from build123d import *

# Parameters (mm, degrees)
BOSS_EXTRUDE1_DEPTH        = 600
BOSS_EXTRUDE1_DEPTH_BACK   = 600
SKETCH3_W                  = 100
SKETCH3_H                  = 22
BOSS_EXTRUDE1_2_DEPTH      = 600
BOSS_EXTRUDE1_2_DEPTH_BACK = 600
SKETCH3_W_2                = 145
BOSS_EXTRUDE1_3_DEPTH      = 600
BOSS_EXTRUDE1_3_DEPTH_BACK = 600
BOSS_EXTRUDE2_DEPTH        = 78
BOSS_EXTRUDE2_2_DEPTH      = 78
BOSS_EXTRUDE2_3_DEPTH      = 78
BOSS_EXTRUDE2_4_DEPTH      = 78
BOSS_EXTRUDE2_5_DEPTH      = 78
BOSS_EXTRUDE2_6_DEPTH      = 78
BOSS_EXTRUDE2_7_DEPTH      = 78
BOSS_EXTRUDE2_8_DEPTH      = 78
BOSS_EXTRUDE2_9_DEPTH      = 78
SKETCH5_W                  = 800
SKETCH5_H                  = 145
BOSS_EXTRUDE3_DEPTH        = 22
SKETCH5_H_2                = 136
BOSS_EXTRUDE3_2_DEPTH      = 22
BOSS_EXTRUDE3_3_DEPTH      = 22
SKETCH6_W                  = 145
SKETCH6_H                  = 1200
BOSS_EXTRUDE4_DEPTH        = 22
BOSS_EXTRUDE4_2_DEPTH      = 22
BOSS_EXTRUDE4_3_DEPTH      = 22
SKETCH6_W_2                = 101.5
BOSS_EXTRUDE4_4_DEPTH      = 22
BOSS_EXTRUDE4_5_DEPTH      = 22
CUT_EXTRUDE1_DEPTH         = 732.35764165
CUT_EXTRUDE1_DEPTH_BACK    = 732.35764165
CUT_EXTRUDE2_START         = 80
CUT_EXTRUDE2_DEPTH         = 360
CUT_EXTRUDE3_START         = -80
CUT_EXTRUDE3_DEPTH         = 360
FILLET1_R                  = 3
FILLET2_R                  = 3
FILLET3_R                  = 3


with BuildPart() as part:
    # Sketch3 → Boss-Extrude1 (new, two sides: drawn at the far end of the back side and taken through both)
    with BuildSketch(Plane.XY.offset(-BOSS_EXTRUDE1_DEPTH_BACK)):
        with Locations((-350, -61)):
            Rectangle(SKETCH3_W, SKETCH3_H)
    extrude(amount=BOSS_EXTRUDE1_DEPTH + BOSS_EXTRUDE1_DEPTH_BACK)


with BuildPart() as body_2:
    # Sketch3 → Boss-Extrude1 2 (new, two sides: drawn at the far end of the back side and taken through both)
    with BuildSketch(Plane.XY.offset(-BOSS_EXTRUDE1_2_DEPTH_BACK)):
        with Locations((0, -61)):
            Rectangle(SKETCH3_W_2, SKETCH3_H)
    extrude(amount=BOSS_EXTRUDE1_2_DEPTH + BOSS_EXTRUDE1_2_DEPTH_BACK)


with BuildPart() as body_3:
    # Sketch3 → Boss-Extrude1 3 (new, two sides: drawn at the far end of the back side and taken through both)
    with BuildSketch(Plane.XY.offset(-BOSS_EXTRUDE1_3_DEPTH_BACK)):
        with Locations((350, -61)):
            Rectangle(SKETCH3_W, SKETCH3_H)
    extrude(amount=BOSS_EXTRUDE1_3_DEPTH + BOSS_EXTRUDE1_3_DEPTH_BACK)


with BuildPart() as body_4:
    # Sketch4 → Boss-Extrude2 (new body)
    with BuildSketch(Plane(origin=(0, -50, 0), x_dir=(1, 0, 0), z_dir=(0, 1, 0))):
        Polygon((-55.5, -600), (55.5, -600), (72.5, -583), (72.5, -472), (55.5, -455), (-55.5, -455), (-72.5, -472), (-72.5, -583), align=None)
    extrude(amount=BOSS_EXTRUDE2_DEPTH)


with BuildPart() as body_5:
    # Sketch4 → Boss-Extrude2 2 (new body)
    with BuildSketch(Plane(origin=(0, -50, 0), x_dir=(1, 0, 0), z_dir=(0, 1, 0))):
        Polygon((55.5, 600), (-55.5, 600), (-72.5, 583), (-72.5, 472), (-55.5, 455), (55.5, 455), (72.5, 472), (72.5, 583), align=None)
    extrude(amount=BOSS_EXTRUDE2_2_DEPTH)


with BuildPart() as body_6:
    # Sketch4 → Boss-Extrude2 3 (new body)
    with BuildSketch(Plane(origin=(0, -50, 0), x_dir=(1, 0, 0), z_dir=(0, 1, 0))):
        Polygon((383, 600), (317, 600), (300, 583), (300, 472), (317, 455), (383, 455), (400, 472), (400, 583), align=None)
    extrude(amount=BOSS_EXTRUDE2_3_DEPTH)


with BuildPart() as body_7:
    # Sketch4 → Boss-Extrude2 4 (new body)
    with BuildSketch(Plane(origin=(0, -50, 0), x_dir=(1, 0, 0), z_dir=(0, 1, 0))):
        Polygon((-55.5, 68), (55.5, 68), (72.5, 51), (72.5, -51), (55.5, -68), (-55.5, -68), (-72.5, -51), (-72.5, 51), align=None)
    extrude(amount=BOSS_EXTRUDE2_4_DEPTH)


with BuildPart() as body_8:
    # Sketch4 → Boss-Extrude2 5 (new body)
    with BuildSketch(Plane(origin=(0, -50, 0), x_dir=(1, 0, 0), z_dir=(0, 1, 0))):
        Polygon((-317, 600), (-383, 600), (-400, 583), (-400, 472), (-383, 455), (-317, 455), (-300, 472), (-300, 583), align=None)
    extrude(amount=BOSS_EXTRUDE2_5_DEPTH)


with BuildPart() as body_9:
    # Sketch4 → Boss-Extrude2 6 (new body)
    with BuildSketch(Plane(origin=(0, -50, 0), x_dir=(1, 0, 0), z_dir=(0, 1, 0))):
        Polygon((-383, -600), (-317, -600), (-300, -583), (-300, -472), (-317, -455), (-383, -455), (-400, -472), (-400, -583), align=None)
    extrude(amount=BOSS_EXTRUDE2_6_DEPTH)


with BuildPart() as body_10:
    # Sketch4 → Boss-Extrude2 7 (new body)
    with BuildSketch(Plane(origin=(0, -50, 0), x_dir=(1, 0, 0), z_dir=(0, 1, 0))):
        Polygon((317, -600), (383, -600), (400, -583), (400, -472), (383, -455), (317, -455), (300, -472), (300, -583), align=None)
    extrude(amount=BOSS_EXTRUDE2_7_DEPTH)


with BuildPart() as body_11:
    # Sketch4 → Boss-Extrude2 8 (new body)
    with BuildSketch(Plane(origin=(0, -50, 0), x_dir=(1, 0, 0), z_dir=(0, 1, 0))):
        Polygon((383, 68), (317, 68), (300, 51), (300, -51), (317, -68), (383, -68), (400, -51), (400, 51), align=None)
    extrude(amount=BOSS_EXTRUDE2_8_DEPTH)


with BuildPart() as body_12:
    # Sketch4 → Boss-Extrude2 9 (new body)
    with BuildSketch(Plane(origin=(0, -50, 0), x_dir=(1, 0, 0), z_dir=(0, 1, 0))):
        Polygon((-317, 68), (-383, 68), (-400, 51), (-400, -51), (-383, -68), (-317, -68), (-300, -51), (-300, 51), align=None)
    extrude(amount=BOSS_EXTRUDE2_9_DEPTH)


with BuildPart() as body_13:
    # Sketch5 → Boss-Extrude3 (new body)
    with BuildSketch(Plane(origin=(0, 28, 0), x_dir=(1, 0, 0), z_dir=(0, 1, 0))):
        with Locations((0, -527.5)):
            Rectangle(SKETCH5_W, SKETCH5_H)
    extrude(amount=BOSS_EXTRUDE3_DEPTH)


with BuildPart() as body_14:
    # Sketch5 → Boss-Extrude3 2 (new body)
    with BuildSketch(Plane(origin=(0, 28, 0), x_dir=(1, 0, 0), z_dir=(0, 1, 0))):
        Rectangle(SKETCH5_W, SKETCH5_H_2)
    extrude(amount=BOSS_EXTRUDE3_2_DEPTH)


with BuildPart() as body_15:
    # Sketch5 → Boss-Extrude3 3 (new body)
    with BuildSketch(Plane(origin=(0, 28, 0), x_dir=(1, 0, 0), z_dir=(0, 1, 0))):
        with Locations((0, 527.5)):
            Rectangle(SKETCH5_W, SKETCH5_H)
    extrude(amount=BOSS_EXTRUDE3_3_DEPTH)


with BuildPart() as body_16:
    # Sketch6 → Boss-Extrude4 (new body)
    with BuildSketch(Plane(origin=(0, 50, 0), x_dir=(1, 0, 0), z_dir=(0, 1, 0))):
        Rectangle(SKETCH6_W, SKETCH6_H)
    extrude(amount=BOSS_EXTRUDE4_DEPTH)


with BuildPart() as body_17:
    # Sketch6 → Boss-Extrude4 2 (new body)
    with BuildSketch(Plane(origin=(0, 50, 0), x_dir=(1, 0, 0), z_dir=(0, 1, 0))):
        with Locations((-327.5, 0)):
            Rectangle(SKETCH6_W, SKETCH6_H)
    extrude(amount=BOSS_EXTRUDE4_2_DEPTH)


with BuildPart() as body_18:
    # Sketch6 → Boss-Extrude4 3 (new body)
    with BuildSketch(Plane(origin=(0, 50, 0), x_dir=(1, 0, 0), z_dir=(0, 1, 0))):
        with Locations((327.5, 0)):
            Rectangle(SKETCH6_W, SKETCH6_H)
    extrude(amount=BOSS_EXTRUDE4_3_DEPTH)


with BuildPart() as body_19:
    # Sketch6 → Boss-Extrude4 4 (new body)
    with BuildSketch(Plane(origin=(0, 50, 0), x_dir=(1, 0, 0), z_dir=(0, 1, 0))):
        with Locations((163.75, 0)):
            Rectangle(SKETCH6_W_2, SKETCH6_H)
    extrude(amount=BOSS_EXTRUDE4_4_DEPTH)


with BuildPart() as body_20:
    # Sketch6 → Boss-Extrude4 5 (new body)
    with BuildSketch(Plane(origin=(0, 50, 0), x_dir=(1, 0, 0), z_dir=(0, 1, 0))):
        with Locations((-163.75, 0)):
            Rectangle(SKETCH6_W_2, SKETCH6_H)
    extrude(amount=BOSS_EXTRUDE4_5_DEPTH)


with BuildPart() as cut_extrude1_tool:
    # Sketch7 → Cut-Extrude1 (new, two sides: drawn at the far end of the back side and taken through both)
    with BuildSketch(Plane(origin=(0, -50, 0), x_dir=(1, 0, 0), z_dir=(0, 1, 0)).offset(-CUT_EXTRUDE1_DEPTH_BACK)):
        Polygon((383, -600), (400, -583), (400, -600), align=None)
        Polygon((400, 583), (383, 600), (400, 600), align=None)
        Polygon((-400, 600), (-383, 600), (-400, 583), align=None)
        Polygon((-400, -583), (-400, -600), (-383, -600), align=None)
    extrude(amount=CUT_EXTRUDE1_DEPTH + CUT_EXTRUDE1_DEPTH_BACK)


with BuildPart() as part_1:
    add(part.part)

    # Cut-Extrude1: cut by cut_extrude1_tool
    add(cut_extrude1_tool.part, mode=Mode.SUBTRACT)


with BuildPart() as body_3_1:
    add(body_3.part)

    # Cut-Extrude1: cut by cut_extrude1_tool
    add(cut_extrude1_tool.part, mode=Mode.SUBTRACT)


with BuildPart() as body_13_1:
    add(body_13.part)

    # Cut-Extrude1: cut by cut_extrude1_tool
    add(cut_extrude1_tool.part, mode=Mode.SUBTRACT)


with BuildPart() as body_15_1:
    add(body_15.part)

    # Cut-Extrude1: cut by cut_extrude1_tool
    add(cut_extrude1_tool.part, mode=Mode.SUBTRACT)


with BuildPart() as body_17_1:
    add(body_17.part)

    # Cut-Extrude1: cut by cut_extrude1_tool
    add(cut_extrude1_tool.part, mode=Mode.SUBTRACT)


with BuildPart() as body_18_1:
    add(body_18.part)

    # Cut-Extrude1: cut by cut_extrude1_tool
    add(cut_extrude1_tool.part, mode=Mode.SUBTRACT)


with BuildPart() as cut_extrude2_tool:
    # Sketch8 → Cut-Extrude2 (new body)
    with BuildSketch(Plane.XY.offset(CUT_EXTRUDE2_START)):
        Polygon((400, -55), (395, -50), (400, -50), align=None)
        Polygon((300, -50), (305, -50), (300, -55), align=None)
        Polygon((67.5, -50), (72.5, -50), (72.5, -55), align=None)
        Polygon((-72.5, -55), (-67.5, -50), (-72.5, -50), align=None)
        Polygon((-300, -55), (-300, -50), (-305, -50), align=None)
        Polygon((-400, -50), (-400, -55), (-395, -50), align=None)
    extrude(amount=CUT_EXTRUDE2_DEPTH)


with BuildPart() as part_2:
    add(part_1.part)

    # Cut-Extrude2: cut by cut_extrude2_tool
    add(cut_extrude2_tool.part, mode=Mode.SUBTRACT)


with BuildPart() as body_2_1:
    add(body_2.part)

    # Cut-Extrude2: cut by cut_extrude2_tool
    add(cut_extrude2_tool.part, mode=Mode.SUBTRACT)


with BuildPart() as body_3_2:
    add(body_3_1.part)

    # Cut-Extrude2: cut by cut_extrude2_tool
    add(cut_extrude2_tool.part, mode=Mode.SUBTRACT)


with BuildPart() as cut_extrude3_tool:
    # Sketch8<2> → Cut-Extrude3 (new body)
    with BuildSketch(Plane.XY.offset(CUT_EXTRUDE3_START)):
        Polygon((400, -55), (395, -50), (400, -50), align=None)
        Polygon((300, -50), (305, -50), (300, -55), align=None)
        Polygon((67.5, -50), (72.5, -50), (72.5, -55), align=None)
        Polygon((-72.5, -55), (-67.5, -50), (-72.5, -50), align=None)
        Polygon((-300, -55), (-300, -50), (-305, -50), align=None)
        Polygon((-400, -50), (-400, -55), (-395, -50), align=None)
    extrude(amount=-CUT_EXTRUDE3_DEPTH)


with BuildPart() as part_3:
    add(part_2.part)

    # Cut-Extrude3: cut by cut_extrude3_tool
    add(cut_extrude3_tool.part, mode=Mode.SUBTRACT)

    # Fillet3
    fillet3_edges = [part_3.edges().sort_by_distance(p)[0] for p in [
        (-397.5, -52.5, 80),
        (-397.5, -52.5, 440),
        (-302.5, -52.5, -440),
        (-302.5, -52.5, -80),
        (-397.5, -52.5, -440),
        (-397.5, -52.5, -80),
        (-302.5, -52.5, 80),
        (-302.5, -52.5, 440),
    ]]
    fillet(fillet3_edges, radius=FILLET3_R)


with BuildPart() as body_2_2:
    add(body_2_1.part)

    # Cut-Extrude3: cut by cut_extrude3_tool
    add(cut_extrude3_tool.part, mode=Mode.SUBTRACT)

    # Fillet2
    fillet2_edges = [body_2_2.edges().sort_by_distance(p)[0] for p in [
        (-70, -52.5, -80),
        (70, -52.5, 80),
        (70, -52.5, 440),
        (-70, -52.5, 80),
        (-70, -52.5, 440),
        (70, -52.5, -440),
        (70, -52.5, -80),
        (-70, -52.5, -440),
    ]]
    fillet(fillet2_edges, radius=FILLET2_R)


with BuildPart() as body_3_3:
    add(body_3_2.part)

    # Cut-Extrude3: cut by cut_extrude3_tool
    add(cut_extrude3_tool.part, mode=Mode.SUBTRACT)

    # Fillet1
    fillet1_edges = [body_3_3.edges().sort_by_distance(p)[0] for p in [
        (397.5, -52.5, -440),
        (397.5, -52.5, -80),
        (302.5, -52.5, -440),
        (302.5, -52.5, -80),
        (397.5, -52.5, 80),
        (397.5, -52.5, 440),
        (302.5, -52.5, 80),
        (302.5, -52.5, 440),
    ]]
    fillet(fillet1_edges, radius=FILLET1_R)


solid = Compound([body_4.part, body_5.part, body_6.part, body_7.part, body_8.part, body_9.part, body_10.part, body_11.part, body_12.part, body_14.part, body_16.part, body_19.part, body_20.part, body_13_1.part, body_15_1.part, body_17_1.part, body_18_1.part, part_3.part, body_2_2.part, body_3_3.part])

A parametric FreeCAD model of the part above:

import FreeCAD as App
import Part
import Sketcher
from FreeCAD import Vector
Q = App.Units.Quantity


def edges_at(feature, points):
    """Names of the edges that pass closest to the given points."""
    edges = feature.Shape.Edges
    near = lambda p: min(range(len(edges)), key=lambda i: edges[i].distToShape(Part.Vertex(*p))[0])
    return sorted({f"Edge{near(p) + 1}" for p in points})


def add_polygon(sketch, points):
    """Adds a closed chain of lines whose ends are joined by coincident constraints."""
    first, n = sketch.GeometryCount, len(points)
    for a, b in zip(points, points[1:] + points[:1]):
        sketch.addGeometry(Part.LineSegment(App.Vector(*a, 0), App.Vector(*b, 0)), False)
    for i in range(n):
        sketch.addConstraint(Sketcher.Constraint("Coincident", first + i, 2, first + (i + 1) % n, 1))

doc = App.newDocument("Part")
params = doc.addObject("Spreadsheet::Sheet", "Params")
for row, (alias, value) in enumerate([
    ("sketch1_width", "100 mm"),
    ("sketch1_height", "22 mm"),
    ("pad1_length", "600 mm"),
    ("pad1_length2", "600 mm"),
    ("sketch2_width", "145 mm"),
    ("sketch2_height", "22 mm"),
    ("pad2_length", "600 mm"),
    ("pad2_length2", "600 mm"),
    ("sketch3_width", "100 mm"),
    ("sketch3_height", "22 mm"),
    ("pad3_length", "600 mm"),
    ("pad3_length2", "600 mm"),
    ("sketch4_width", "111 mm"),
    ("pad4_length", "78 mm"),
    ("sketch5_width", "111 mm"),
    ("pad5_length", "78 mm"),
    ("sketch6_width", "66 mm"),
    ("sketch6_height", "111 mm"),
    ("pad6_length", "78 mm"),
    ("sketch7_width", "111 mm"),
    ("sketch7_height", "102 mm"),
    ("pad7_length", "78 mm"),
    ("sketch8_width", "66 mm"),
    ("sketch8_height", "111 mm"),
    ("pad8_length", "78 mm"),
    ("sketch9_width", "66 mm"),
    ("sketch9_height", "111 mm"),
    ("pad9_length", "78 mm"),
    ("sketch10_width", "66 mm"),
    ("sketch10_height", "111 mm"),
    ("pad10_length", "78 mm"),
    ("sketch11_width", "66 mm"),
    ("sketch11_height", "102 mm"),
    ("pad11_length", "78 mm"),
    ("sketch12_width", "66 mm"),
    ("sketch12_height", "102 mm"),
    ("pad12_length", "78 mm"),
    ("sketch13_width", "800 mm"),
    ("sketch13_height", "145 mm"),
    ("pad13_length", "22 mm"),
    ("sketch14_width", "800 mm"),
    ("sketch14_height", "136 mm"),
    ("pad14_length", "22 mm"),
    ("sketch15_width", "800 mm"),
    ("sketch15_height", "145 mm"),
    ("pad15_length", "22 mm"),
    ("sketch16_width", "145 mm"),
    ("sketch16_height", "1200 mm"),
    ("pad16_length", "22 mm"),
    ("sketch17_width", "145 mm"),
    ("sketch17_height", "1200 mm"),
    ("pad17_length", "22 mm"),
    ("sketch18_width", "145 mm"),
    ("sketch18_height", "1200 mm"),
    ("pad18_length", "22 mm"),
    ("sketch19_height", "1200 mm"),
    ("sketch19_width", "101.5 mm"),
    ("pad19_length", "22 mm"),
    ("sketch20_height", "1200 mm"),
    ("sketch20_width", "101.5 mm"),
    ("pad20_length", "22 mm"),
    ("sketch21_width", "17 mm"),
    ("pad21_length", "732.357642 mm"),
    ("pad21_length2", "732.357642 mm"),
    ("sketch22_width", "5 mm"),
    ("pad22_length", "360 mm"),
    ("sketch23_width", "5 mm"),
    ("pad23_length", "360 mm"),
    ("fillet_radius", "3 mm"),
    ("fillet2_radius", "3 mm"),
    ("fillet3_radius", "3 mm"),
], start=1):
    params.set(f"A{row}", alias)
    params.set(f"B{row}", "=" + value)
    params.setAlias(f"B{row}", alias)

body = doc.addObject("PartDesign::Body", "Body")

sketch1 = body.newObject("Sketcher::SketchObject", "Sketch")
sketch1.AttachmentSupport = (doc.getObject("XY_Plane"), [""])
sketch1.MapMode = "FlatFace"
add_polygon(sketch1, [(-400, -50), (-400, -72), (-300, -72), (-300, -50)])
sketch1.addConstraint(Sketcher.Constraint("Vertical", 0))
sketch1.addConstraint(Sketcher.Constraint("Horizontal", 1))
sketch1.addConstraint(Sketcher.Constraint("Vertical", 2))
sketch1.addConstraint(Sketcher.Constraint("Horizontal", 3))
sketch1.addConstraint(Sketcher.Constraint("DistanceX", 1, 1, 1, 2, Q("100 mm")))
sketch1.addConstraint(Sketcher.Constraint("DistanceY", 0, 2, 0, 1, Q("22 mm")))
sketch1.addConstraint(Sketcher.Constraint("DistanceX", 0, 2, -1, 1, Q("400 mm")))
sketch1.addConstraint(Sketcher.Constraint("DistanceY", 0, 2, -1, 1, Q("72 mm")))
sketch1.setExpression("Constraints[8]", "Params.sketch1_width")
sketch1.setExpression("Constraints[9]", "Params.sketch1_height")
pad1 = body.newObject("PartDesign::Pad", "Pad")
pad1.Profile = sketch1
pad1.Type = "TwoLengths"
pad1.setExpression("Length", "Params.pad1_length")
pad1.setExpression("Length2", "Params.pad1_length2")
body2 = doc.addObject("PartDesign::Body", "Body001")

sketch2 = body2.newObject("Sketcher::SketchObject", "Sketch001")
sketch2.AttachmentSupport = (doc.getObject("XY_Plane001"), [""])
sketch2.MapMode = "FlatFace"
add_polygon(sketch2, [(-72, -50), (-72, -72), (72, -72), (72, -50)])
sketch2.addConstraint(Sketcher.Constraint("Vertical", 0))
sketch2.addConstraint(Sketcher.Constraint("Horizontal", 1))
sketch2.addConstraint(Sketcher.Constraint("Vertical", 2))
sketch2.addConstraint(Sketcher.Constraint("Horizontal", 3))
sketch2.addConstraint(Sketcher.Constraint("DistanceX", 1, 1, 1, 2, Q("145 mm")))
sketch2.addConstraint(Sketcher.Constraint("DistanceY", 0, 2, 0, 1, Q("22 mm")))
sketch2.addConstraint(Sketcher.Constraint("DistanceY", 0, 2, -1, 1, Q("72 mm")))
sketch2.addConstraint(Sketcher.Constraint("DistanceX", 0, 2, -1, 1, Q("72.5 mm")))
sketch2.setExpression("Constraints[8]", "Params.sketch2_width")
sketch2.setExpression("Constraints[9]", "Params.sketch2_height")
pad2 = body2.newObject("PartDesign::Pad", "Pad001")
pad2.Profile = sketch2
pad2.Type = "TwoLengths"
pad2.setExpression("Length", "Params.pad2_length")
pad2.setExpression("Length2", "Params.pad2_length2")
body3 = doc.addObject("PartDesign::Body", "Body002")

sketch3 = body3.newObject("Sketcher::SketchObject", "Sketch002")
sketch3.AttachmentSupport = (doc.getObject("XY_Plane002"), [""])
sketch3.MapMode = "FlatFace"
add_polygon(sketch3, [(300, -50), (300, -72), (400, -72), (400, -50)])
sketch3.addConstraint(Sketcher.Constraint("Vertical", 0))
sketch3.addConstraint(Sketcher.Constraint("Horizontal", 1))
sketch3.addConstraint(Sketcher.Constraint("Vertical", 2))
sketch3.addConstraint(Sketcher.Constraint("Horizontal", 3))
sketch3.addConstraint(Sketcher.Constraint("DistanceX", 1, 1, 1, 2, Q("100 mm")))
sketch3.addConstraint(Sketcher.Constraint("DistanceY", 0, 2, 0, 1, Q("22 mm")))
sketch3.addConstraint(Sketcher.Constraint("DistanceX", -1, 1, 0, 2, Q("300 mm")))
sketch3.addConstraint(Sketcher.Constraint("DistanceY", 0, 2, -1, 1, Q("72 mm")))
sketch3.setExpression("Constraints[8]", "Params.sketch3_width")
sketch3.setExpression("Constraints[9]", "Params.sketch3_height")
pad3 = body3.newObject("PartDesign::Pad", "Pad002")
pad3.Profile = sketch3
pad3.Type = "TwoLengths"
pad3.setExpression("Length", "Params.pad3_length")
pad3.setExpression("Length2", "Params.pad3_length2")
body4 = doc.addObject("PartDesign::Body", "Body003")

sketch4 = body4.newObject("Sketcher::SketchObject", "Sketch003")
sketch4.AttachmentSupport = (doc.getObject("XZ_Plane003"), [""])
sketch4.MapMode = "FlatFace"
sketch4.AttachmentOffset = App.Placement(Vector(0, 0, 50), App.Rotation())
add_polygon(sketch4, [(-56, 600), (56, 600), (72, 583), (72, 472), (56, 455), (-56, 455), (-72, 472), (-72, 583)])
sketch4.addConstraint(Sketcher.Constraint("Horizontal", 0))
sketch4.addConstraint(Sketcher.Constraint("Vertical", 2))
sketch4.addConstraint(Sketcher.Constraint("Horizontal", 4))
sketch4.addConstraint(Sketcher.Constraint("Vertical", 6))
sketch4.addConstraint(Sketcher.Constraint("Symmetric", 2, 2, 5, 2, -2))
sketch4.addConstraint(Sketcher.Constraint("Perpendicular", 1, 3))
sketch4.addConstraint(Sketcher.Constraint("Perpendicular", 3, 5))
sketch4.addConstraint(Sketcher.Constraint("Perpendicular", 5, 7))
sketch4.addConstraint(Sketcher.Constraint("Horizontal", 1, 2, 6, 2))
sketch4.addConstraint(Sketcher.Constraint("Vertical", 0, 2, 3, 2))
sketch4.addConstraint(Sketcher.Constraint("Vertical", 4, 2, 7, 2))
sketch4.addConstraint(Sketcher.Constraint("Equal", 4, 2))
sketch4.addConstraint(Sketcher.Constraint("DistanceX", 0, 1, 0, 2, Q("111 mm")))
sketch4.addConstraint(Sketcher.Constraint("DistanceY", -1, 1, 0, 2, Q("600 mm")))
sketch4.addConstraint(Sketcher.Constraint("DistanceY", -1, 1, 1, 2, Q("583 mm")))
sketch4.setExpression("Constraints[20]", "Params.sketch4_width")
pad4 = body4.newObject("PartDesign::Pad", "Pad003")
pad4.Profile = sketch4
pad4.setExpression("Length", "Params.pad4_length")
pad4.Reversed = True
body5 = doc.addObject("PartDesign::Body", "Body004")

sketch5 = body5.newObject("Sketcher::SketchObject", "Sketch004")
sketch5.AttachmentSupport = (doc.getObject("XZ_Plane004"), [""])
sketch5.MapMode = "FlatFace"
sketch5.AttachmentOffset = App.Placement(Vector(0, 0, 50), App.Rotation())
add_polygon(sketch5, [(56, -600), (-56, -600), (-72, -583), (-72, -472), (-56, -455), (56, -455), (72, -472), (72, -583)])
sketch5.addConstraint(Sketcher.Constraint("Horizontal", 0))
sketch5.addConstraint(Sketcher.Constraint("Vertical", 2))
sketch5.addConstraint(Sketcher.Constraint("Horizontal", 4))
sketch5.addConstraint(Sketcher.Constraint("Vertical", 6))
sketch5.addConstraint(Sketcher.Constraint("Symmetric", 2, 2, 5, 2, -2))
sketch5.addConstraint(Sketcher.Constraint("Perpendicular", 1, 3))
sketch5.addConstraint(Sketcher.Constraint("Perpendicular", 3, 5))
sketch5.addConstraint(Sketcher.Constraint("Perpendicular", 5, 7))
sketch5.addConstraint(Sketcher.Constraint("Horizontal", 1, 2, 6, 2))
sketch5.addConstraint(Sketcher.Constraint("Vertical", 0, 2, 3, 2))
sketch5.addConstraint(Sketcher.Constraint("Vertical", 4, 2, 7, 2))
sketch5.addConstraint(Sketcher.Constraint("Equal", 4, 2))
sketch5.addConstraint(Sketcher.Constraint("DistanceX", 0, 2, 0, 1, Q("111 mm")))
sketch5.addConstraint(Sketcher.Constraint("DistanceY", 0, 2, -1, 1, Q("600 mm")))
sketch5.addConstraint(Sketcher.Constraint("DistanceY", 1, 2, -1, 1, Q("583 mm")))
sketch5.setExpression("Constraints[20]", "Params.sketch5_width")
pad5 = body5.newObject("PartDesign::Pad", "Pad004")
pad5.Profile = sketch5
pad5.setExpression("Length", "Params.pad5_length")
pad5.Reversed = True
body6 = doc.addObject("PartDesign::Body", "Body005")

sketch6 = body6.newObject("Sketcher::SketchObject", "Sketch005")
sketch6.AttachmentSupport = (doc.getObject("XZ_Plane005"), [""])
sketch6.MapMode = "FlatFace"
sketch6.AttachmentOffset = App.Placement(Vector(0, 0, 50), App.Rotation())
add_polygon(sketch6, [(383, -600), (317, -600), (300, -583), (300, -472), (317, -455), (383, -455), (400, -472), (400, -583)])
sketch6.addConstraint(Sketcher.Constraint("Horizontal", 0))
sketch6.addConstraint(Sketcher.Constraint("Vertical", 2))
sketch6.addConstraint(Sketcher.Constraint("Horizontal", 4))
sketch6.addConstraint(Sketcher.Constraint("Vertical", 6))
sketch6.addConstraint(Sketcher.Constraint("Perpendicular", 1, 3))
sketch6.addConstraint(Sketcher.Constraint("Perpendicular", 3, 5))
sketch6.addConstraint(Sketcher.Constraint("Perpendicular", 5, 7))
sketch6.addConstraint(Sketcher.Constraint("Horizontal", 2, 2, 5, 2))
sketch6.addConstraint(Sketcher.Constraint("Horizontal", 1, 2, 6, 2))
sketch6.addConstraint(Sketcher.Constraint("Vertical", 0, 2, 3, 2))
sketch6.addConstraint(Sketcher.Constraint("Vertical", 4, 2, 7, 2))
sketch6.addConstraint(Sketcher.Constraint("DistanceX", 0, 2, 0, 1, Q("66 mm")))
sketch6.addConstraint(Sketcher.Constraint("DistanceY", 2, 1, 2, 2, Q("111 mm")))
sketch6.addConstraint(Sketcher.Constraint("DistanceX", -1, 1, 0, 2, Q("317 mm")))
sketch6.addConstraint(Sketcher.Constraint("DistanceY", 0, 2, -1, 1, Q("600 mm")))
sketch6.addConstraint(Sketcher.Constraint("DistanceX", -1, 1, 1, 2, Q("300 mm")))
sketch6.setExpression("Constraints[19]", "Params.sketch6_width")
sketch6.setExpression("Constraints[20]", "Params.sketch6_height")
pad6 = body6.newObject("PartDesign::Pad", "Pad005")
pad6.Profile = sketch6
pad6.setExpression("Length", "Params.pad6_length")
pad6.Reversed = True
body7 = doc.addObject("PartDesign::Body", "Body006")

sketch7 = body7.newObject("Sketcher::SketchObject", "Sketch006")
sketch7.AttachmentSupport = (doc.getObject("XZ_Plane006"), [""])
sketch7.MapMode = "FlatFace"
sketch7.AttachmentOffset = App.Placement(Vector(0, 0, 50), App.Rotation())
add_polygon(sketch7, [(56, -68), (-56, -68), (-72, -51), (-72, 51), (-56, 68), (56, 68), (72, 51), (72, -51)])
sketch7.addConstraint(Sketcher.Constraint("Horizontal", 0))
sketch7.addConstraint(Sketcher.Constraint("Vertical", 2))
sketch7.addConstraint(Sketcher.Constraint("Horizontal", 4))
sketch7.addConstraint(Sketcher.Constraint("Vertical", 6))
sketch7.addConstraint(Sketcher.Constraint("Symmetric", 0, 2, 4, 2, -1, 1))
sketch7.addConstraint(Sketcher.Constraint("Symmetric", 1, 2, 5, 2, -1, 1))
sketch7.addConstraint(Sketcher.Constraint("Perpendicular", 1, 3))
sketch7.addConstraint(Sketcher.Constraint("Perpendicular", 5, 7))
sketch7.addConstraint(Sketcher.Constraint("Horizontal", 2, 2, 5, 2))
sketch7.addConstraint(Sketcher.Constraint("Horizontal", 1, 2, 6, 2))
sketch7.addConstraint(Sketcher.Constraint("Vertical", 0, 2, 3, 2))
sketch7.addConstraint(Sketcher.Constraint("DistanceX", 0, 2, 0, 1, Q("111 mm")))
sketch7.addConstraint(Sketcher.Constraint("DistanceY", 2, 1, 2, 2, Q("102 mm")))
sketch7.addConstraint(Sketcher.Constraint("DistanceY", 0, 2, -1, 1, Q("68 mm")))
sketch7.setExpression("Constraints[19]", "Params.sketch7_width")
sketch7.setExpression("Constraints[20]", "Params.sketch7_height")
pad7 = body7.newObject("PartDesign::Pad", "Pad006")
pad7.Profile = sketch7
pad7.setExpression("Length", "Params.pad7_length")
pad7.Reversed = True
body8 = doc.addObject("PartDesign::Body", "Body007")

sketch8 = body8.newObject("Sketcher::SketchObject", "Sketch007")
sketch8.AttachmentSupport = (doc.getObject("XZ_Plane007"), [""])
sketch8.MapMode = "FlatFace"
sketch8.AttachmentOffset = App.Placement(Vector(0, 0, 50), App.Rotation())
add_polygon(sketch8, [(-317, -600), (-383, -600), (-400, -583), (-400, -472), (-383, -455), (-317, -455), (-300, -472), (-300, -583)])
sketch8.addConstraint(Sketcher.Constraint("Horizontal", 0))
sketch8.addConstraint(Sketcher.Constraint("Vertical", 2))
sketch8.addConstraint(Sketcher.Constraint("Horizontal", 4))
sketch8.addConstraint(Sketcher.Constraint("Vertical", 6))
sketch8.addConstraint(Sketcher.Constraint("Perpendicular", 1, 3))
sketch8.addConstraint(Sketcher.Constraint("Perpendicular", 3, 5))
sketch8.addConstraint(Sketcher.Constraint("Perpendicular", 5, 7))
sketch8.addConstraint(Sketcher.Constraint("Horizontal", 2, 2, 5, 2))
sketch8.addConstraint(Sketcher.Constraint("Horizontal", 1, 2, 6, 2))
sketch8.addConstraint(Sketcher.Constraint("Vertical", 0, 2, 3, 2))
sketch8.addConstraint(Sketcher.Constraint("Vertical", 4, 2, 7, 2))
sketch8.addConstraint(Sketcher.Constraint("DistanceX", 0, 2, 0, 1, Q("66 mm")))
sketch8.addConstraint(Sketcher.Constraint("DistanceY", 2, 1, 2, 2, Q("111 mm")))
sketch8.addConstraint(Sketcher.Constraint("DistanceX", 0, 2, -1, 1, Q("383 mm")))
sketch8.addConstraint(Sketcher.Constraint("DistanceY", 0, 2, -1, 1, Q("600 mm")))
sketch8.addConstraint(Sketcher.Constraint("DistanceX", 1, 2, -1, 1, Q("400 mm")))
sketch8.setExpression("Constraints[19]", "Params.sketch8_width")
sketch8.setExpression("Constraints[20]", "Params.sketch8_height")
pad8 = body8.newObject("PartDesign::Pad", "Pad007")
pad8.Profile = sketch8
pad8.setExpression("Length", "Params.pad8_length")
pad8.Reversed = True
body9 = doc.addObject("PartDesign::Body", "Body008")

sketch9 = body9.newObject("Sketcher::SketchObject", "Sketch008")
sketch9.AttachmentSupport = (doc.getObject("XZ_Plane008"), [""])
sketch9.MapMode = "FlatFace"
sketch9.AttachmentOffset = App.Placement(Vector(0, 0, 50), App.Rotation())
add_polygon(sketch9, [(-383, 600), (-317, 600), (-300, 583), (-300, 472), (-317, 455), (-383, 455), (-400, 472), (-400, 583)])
sketch9.addConstraint(Sketcher.Constraint("Horizontal", 0))
sketch9.addConstraint(Sketcher.Constraint("Vertical", 2))
sketch9.addConstraint(Sketcher.Constraint("Horizontal", 4))
sketch9.addConstraint(Sketcher.Constraint("Vertical", 6))
sketch9.addConstraint(Sketcher.Constraint("Perpendicular", 1, 3))
sketch9.addConstraint(Sketcher.Constraint("Perpendicular", 3, 5))
sketch9.addConstraint(Sketcher.Constraint("Perpendicular", 5, 7))
sketch9.addConstraint(Sketcher.Constraint("Horizontal", 2, 2, 5, 2))
sketch9.addConstraint(Sketcher.Constraint("Horizontal", 1, 2, 6, 2))
sketch9.addConstraint(Sketcher.Constraint("Vertical", 0, 2, 3, 2))
sketch9.addConstraint(Sketcher.Constraint("Vertical", 4, 2, 7, 2))
sketch9.addConstraint(Sketcher.Constraint("DistanceX", 0, 1, 0, 2, Q("66 mm")))
sketch9.addConstraint(Sketcher.Constraint("DistanceY", 2, 2, 2, 1, Q("111 mm")))
sketch9.addConstraint(Sketcher.Constraint("DistanceX", 0, 2, -1, 1, Q("317 mm")))
sketch9.addConstraint(Sketcher.Constraint("DistanceY", -1, 1, 0, 2, Q("600 mm")))
sketch9.addConstraint(Sketcher.Constraint("DistanceX", 1, 2, -1, 1, Q("300 mm")))
sketch9.setExpression("Constraints[19]", "Params.sketch9_width")
sketch9.setExpression("Constraints[20]", "Params.sketch9_height")
pad9 = body9.newObject("PartDesign::Pad", "Pad008")
pad9.Profile = sketch9
pad9.setExpression("Length", "Params.pad9_length")
pad9.Reversed = True
body10 = doc.addObject("PartDesign::Body", "Body009")

sketch10 = body10.newObject("Sketcher::SketchObject", "Sketch009")
sketch10.AttachmentSupport = (doc.getObject("XZ_Plane009"), [""])
sketch10.MapMode = "FlatFace"
sketch10.AttachmentOffset = App.Placement(Vector(0, 0, 50), App.Rotation())
add_polygon(sketch10, [(317, 600), (383, 600), (400, 583), (400, 472), (383, 455), (317, 455), (300, 472), (300, 583)])
sketch10.addConstraint(Sketcher.Constraint("Horizontal", 0))
sketch10.addConstraint(Sketcher.Constraint("Vertical", 2))
sketch10.addConstraint(Sketcher.Constraint("Horizontal", 4))
sketch10.addConstraint(Sketcher.Constraint("Vertical", 6))
sketch10.addConstraint(Sketcher.Constraint("Perpendicular", 1, 3))
sketch10.addConstraint(Sketcher.Constraint("Perpendicular", 3, 5))
sketch10.addConstraint(Sketcher.Constraint("Perpendicular", 5, 7))
sketch10.addConstraint(Sketcher.Constraint("Horizontal", 2, 2, 5, 2))
sketch10.addConstraint(Sketcher.Constraint("Horizontal", 1, 2, 6, 2))
sketch10.addConstraint(Sketcher.Constraint("Vertical", 0, 2, 3, 2))
sketch10.addConstraint(Sketcher.Constraint("Vertical", 4, 2, 7, 2))
sketch10.addConstraint(Sketcher.Constraint("DistanceX", 0, 1, 0, 2, Q("66 mm")))
sketch10.addConstraint(Sketcher.Constraint("DistanceY", 2, 2, 2, 1, Q("111 mm")))
sketch10.addConstraint(Sketcher.Constraint("DistanceX", -1, 1, 0, 2, Q("383 mm")))
sketch10.addConstraint(Sketcher.Constraint("DistanceY", -1, 1, 0, 2, Q("600 mm")))
sketch10.addConstraint(Sketcher.Constraint("DistanceX", -1, 1, 1, 2, Q("400 mm")))
sketch10.setExpression("Constraints[19]", "Params.sketch10_width")
sketch10.setExpression("Constraints[20]", "Params.sketch10_height")
pad10 = body10.newObject("PartDesign::Pad", "Pad009")
pad10.Profile = sketch10
pad10.setExpression("Length", "Params.pad10_length")
pad10.Reversed = True
body11 = doc.addObject("PartDesign::Body", "Body010")

sketch11 = body11.newObject("Sketcher::SketchObject", "Sketch010")
sketch11.AttachmentSupport = (doc.getObject("XZ_Plane010"), [""])
sketch11.MapMode = "FlatFace"
sketch11.AttachmentOffset = App.Placement(Vector(0, 0, 50), App.Rotation())
add_polygon(sketch11, [(383, -68), (317, -68), (300, -51), (300, 51), (317, 68), (383, 68), (400, 51), (400, -51)])
sketch11.addConstraint(Sketcher.Constraint("Horizontal", 0))
sketch11.addConstraint(Sketcher.Constraint("Vertical", 2))
sketch11.addConstraint(Sketcher.Constraint("Horizontal", 4))
sketch11.addConstraint(Sketcher.Constraint("Vertical", 6))
sketch11.addConstraint(Sketcher.Constraint("Symmetric", 0, 2, 3, 2, -1))
sketch11.addConstraint(Sketcher.Constraint("Perpendicular", 1, 3))
sketch11.addConstraint(Sketcher.Constraint("Perpendicular", 3, 5))
sketch11.addConstraint(Sketcher.Constraint("Perpendicular", 5, 7))
sketch11.addConstraint(Sketcher.Constraint("Horizontal", 2, 2, 5, 2))
sketch11.addConstraint(Sketcher.Constraint("Horizontal", 1, 2, 6, 2))
sketch11.addConstraint(Sketcher.Constraint("Vertical", 4, 2, 7, 2))
sketch11.addConstraint(Sketcher.Constraint("DistanceX", 0, 2, 0, 1, Q("66 mm")))
sketch11.addConstraint(Sketcher.Constraint("DistanceY", 2, 1, 2, 2, Q("102 mm")))
sketch11.addConstraint(Sketcher.Constraint("DistanceX", -1, 1, 0, 2, Q("317 mm")))
sketch11.addConstraint(Sketcher.Constraint("DistanceY", 0, 2, -1, 1, Q("68 mm")))
sketch11.setExpression("Constraints[19]", "Params.sketch11_width")
sketch11.setExpression("Constraints[20]", "Params.sketch11_height")
pad11 = body11.newObject("PartDesign::Pad", "Pad010")
pad11.Profile = sketch11
pad11.setExpression("Length", "Params.pad11_length")
pad11.Reversed = True
body12 = doc.addObject("PartDesign::Body", "Body011")

sketch12 = body12.newObject("Sketcher::SketchObject", "Sketch011")
sketch12.AttachmentSupport = (doc.getObject("XZ_Plane011"), [""])
sketch12.MapMode = "FlatFace"
sketch12.AttachmentOffset = App.Placement(Vector(0, 0, 50), App.Rotation())
add_polygon(sketch12, [(-317, -68), (-383, -68), (-400, -51), (-400, 51), (-383, 68), (-317, 68), (-300, 51), (-300, -51)])
sketch12.addConstraint(Sketcher.Constraint("Horizontal", 0))
sketch12.addConstraint(Sketcher.Constraint("Vertical", 2))
sketch12.addConstraint(Sketcher.Constraint("Horizontal", 4))
sketch12.addConstraint(Sketcher.Constraint("Vertical", 6))
sketch12.addConstraint(Sketcher.Constraint("Symmetric", 0, 2, 3, 2, -1))
sketch12.addConstraint(Sketcher.Constraint("Perpendicular", 1, 3))
sketch12.addConstraint(Sketcher.Constraint("Perpendicular", 3, 5))
sketch12.addConstraint(Sketcher.Constraint("Perpendicular", 5, 7))
sketch12.addConstraint(Sketcher.Constraint("Horizontal", 2, 2, 5, 2))
sketch12.addConstraint(Sketcher.Constraint("Horizontal", 1, 2, 6, 2))
sketch12.addConstraint(Sketcher.Constraint("Vertical", 4, 2, 7, 2))
sketch12.addConstraint(Sketcher.Constraint("DistanceX", 0, 2, 0, 1, Q("66 mm")))
sketch12.addConstraint(Sketcher.Constraint("DistanceY", 2, 1, 2, 2, Q("102 mm")))
sketch12.addConstraint(Sketcher.Constraint("DistanceX", 0, 2, -1, 1, Q("383 mm")))
sketch12.addConstraint(Sketcher.Constraint("DistanceY", 0, 2, -1, 1, Q("68 mm")))
sketch12.setExpression("Constraints[19]", "Params.sketch12_width")
sketch12.setExpression("Constraints[20]", "Params.sketch12_height")
pad12 = body12.newObject("PartDesign::Pad", "Pad011")
pad12.Profile = sketch12
pad12.setExpression("Length", "Params.pad12_length")
pad12.Reversed = True
body13 = doc.addObject("PartDesign::Body", "Body012")

sketch13 = body13.newObject("Sketcher::SketchObject", "Sketch012")
sketch13.AttachmentSupport = (doc.getObject("XZ_Plane012"), [""])
sketch13.MapMode = "FlatFace"
sketch13.AttachmentOffset = App.Placement(Vector(0, 0, -28), App.Rotation())
add_polygon(sketch13, [(-400, 455), (-400, 600), (400, 600), (400, 455)])
sketch13.addConstraint(Sketcher.Constraint("Vertical", 0))
sketch13.addConstraint(Sketcher.Constraint("Horizontal", 1))
sketch13.addConstraint(Sketcher.Constraint("Vertical", 2))
sketch13.addConstraint(Sketcher.Constraint("Horizontal", 3))
sketch13.addConstraint(Sketcher.Constraint("DistanceX", 1, 1, 1, 2, Q("800 mm")))
sketch13.addConstraint(Sketcher.Constraint("DistanceY", 0, 1, 0, 2, Q("145 mm")))
sketch13.addConstraint(Sketcher.Constraint("DistanceX", 0, 2, -1, 1, Q("400 mm")))
sketch13.addConstraint(Sketcher.Constraint("DistanceY", -1, 1, 0, 2, Q("600 mm")))
sketch13.setExpression("Constraints[8]", "Params.sketch13_width")
sketch13.setExpression("Constraints[9]", "Params.sketch13_height")
pad13 = body13.newObject("PartDesign::Pad", "Pad012")
pad13.Profile = sketch13
pad13.setExpression("Length", "Params.pad13_length")
pad13.Reversed = True
body14 = doc.addObject("PartDesign::Body", "Body013")

sketch14 = body14.newObject("Sketcher::SketchObject", "Sketch013")
sketch14.AttachmentSupport = (doc.getObject("XZ_Plane013"), [""])
sketch14.MapMode = "FlatFace"
sketch14.AttachmentOffset = App.Placement(Vector(0, 0, -28), App.Rotation())
add_polygon(sketch14, [(-400, -68), (-400, 68), (400, 68), (400, -68)])
sketch14.addConstraint(Sketcher.Constraint("Vertical", 0))
sketch14.addConstraint(Sketcher.Constraint("Horizontal", 1))
sketch14.addConstraint(Sketcher.Constraint("Vertical", 2))
sketch14.addConstraint(Sketcher.Constraint("Horizontal", 3))
sketch14.addConstraint(Sketcher.Constraint("Symmetric", 0, 2, 2, 2, -1, 1))
sketch14.addConstraint(Sketcher.Constraint("DistanceX", 1, 1, 1, 2, Q("800 mm")))
sketch14.addConstraint(Sketcher.Constraint("DistanceY", 0, 1, 0, 2, Q("136 mm")))
sketch14.setExpression("Constraints[9]", "Params.sketch14_width")
sketch14.setExpression("Constraints[10]", "Params.sketch14_height")
pad14 = body14.newObject("PartDesign::Pad", "Pad013")
pad14.Profile = sketch14
pad14.setExpression("Length", "Params.pad14_length")
pad14.Reversed = True
body15 = doc.addObject("PartDesign::Body", "Body014")

sketch15 = body15.newObject("Sketcher::SketchObject", "Sketch014")
sketch15.AttachmentSupport = (doc.getObject("XZ_Plane014"), [""])
sketch15.MapMode = "FlatFace"
sketch15.AttachmentOffset = App.Placement(Vector(0, 0, -28), App.Rotation())
add_polygon(sketch15, [(-400, -600), (-400, -455), (400, -455), (400, -600)])
sketch15.addConstraint(Sketcher.Constraint("Vertical", 0))
sketch15.addConstraint(Sketcher.Constraint("Horizontal", 1))
sketch15.addConstraint(Sketcher.Constraint("Vertical", 2))
sketch15.addConstraint(Sketcher.Constraint("Horizontal", 3))
sketch15.addConstraint(Sketcher.Constraint("DistanceX", 1, 1, 1, 2, Q("800 mm")))
sketch15.addConstraint(Sketcher.Constraint("DistanceY", 0, 1, 0, 2, Q("145 mm")))
sketch15.addConstraint(Sketcher.Constraint("DistanceX", 0, 2, -1, 1, Q("400 mm")))
sketch15.addConstraint(Sketcher.Constraint("DistanceY", 0, 2, -1, 1, Q("455 mm")))
sketch15.setExpression("Constraints[8]", "Params.sketch15_width")
sketch15.setExpression("Constraints[9]", "Params.sketch15_height")
pad15 = body15.newObject("PartDesign::Pad", "Pad014")
pad15.Profile = sketch15
pad15.setExpression("Length", "Params.pad15_length")
pad15.Reversed = True
body16 = doc.addObject("PartDesign::Body", "Body015")

sketch16 = body16.newObject("Sketcher::SketchObject", "Sketch015")
sketch16.AttachmentSupport = (doc.getObject("XZ_Plane015"), [""])
sketch16.MapMode = "FlatFace"
sketch16.AttachmentOffset = App.Placement(Vector(0, 0, -50), App.Rotation())
add_polygon(sketch16, [(-72, -600), (-72, 600), (72, 600), (72, -600)])
sketch16.addConstraint(Sketcher.Constraint("Vertical", 0))
sketch16.addConstraint(Sketcher.Constraint("Horizontal", 1))
sketch16.addConstraint(Sketcher.Constraint("Vertical", 2))
sketch16.addConstraint(Sketcher.Constraint("Horizontal", 3))
sketch16.addConstraint(Sketcher.Constraint("Symmetric", 0, 2, 2, 2, -1, 1))
sketch16.addConstraint(Sketcher.Constraint("DistanceX", 1, 1, 1, 2, Q("145 mm")))
sketch16.addConstraint(Sketcher.Constraint("DistanceY", 0, 1, 0, 2, Q("1200 mm")))
sketch16.setExpression("Constraints[9]", "Params.sketch16_width")
sketch16.setExpression("Constraints[10]", "Params.sketch16_height")
pad16 = body16.newObject("PartDesign::Pad", "Pad015")
pad16.Profile = sketch16
pad16.setExpression("Length", "Params.pad16_length")
pad16.Reversed = True
body17 = doc.addObject("PartDesign::Body", "Body016")

sketch17 = body17.newObject("Sketcher::SketchObject", "Sketch016")
sketch17.AttachmentSupport = (doc.getObject("XZ_Plane016"), [""])
sketch17.MapMode = "FlatFace"
sketch17.AttachmentOffset = App.Placement(Vector(0, 0, -50), App.Rotation())
add_polygon(sketch17, [(-400, -600), (-400, 600), (-255, 600), (-255, -600)])
sketch17.addConstraint(Sketcher.Constraint("Vertical", 0))
sketch17.addConstraint(Sketcher.Constraint("Horizontal", 1))
sketch17.addConstraint(Sketcher.Constraint("Vertical", 2))
sketch17.addConstraint(Sketcher.Constraint("Horizontal", 3))
sketch17.addConstraint(Sketcher.Constraint("DistanceX", 1, 1, 1, 2, Q("145 mm")))
sketch17.addConstraint(Sketcher.Constraint("DistanceY", 0, 1, 0, 2, Q("1200 mm")))
sketch17.addConstraint(Sketcher.Constraint("DistanceX", 0, 2, -1, 1, Q("400 mm")))
sketch17.addConstraint(Sketcher.Constraint("DistanceY", -1, 1, 0, 2, Q("600 mm")))
sketch17.setExpression("Constraints[8]", "Params.sketch17_width")
sketch17.setExpression("Constraints[9]", "Params.sketch17_height")
pad17 = body17.newObject("PartDesign::Pad", "Pad016")
pad17.Profile = sketch17
pad17.setExpression("Length", "Params.pad17_length")
pad17.Reversed = True
body18 = doc.addObject("PartDesign::Body", "Body017")

sketch18 = body18.newObject("Sketcher::SketchObject", "Sketch017")
sketch18.AttachmentSupport = (doc.getObject("XZ_Plane017"), [""])
sketch18.MapMode = "FlatFace"
sketch18.AttachmentOffset = App.Placement(Vector(0, 0, -50), App.Rotation())
add_polygon(sketch18, [(255, -600), (255, 600), (400, 600), (400, -600)])
sketch18.addConstraint(Sketcher.Constraint("Vertical", 0))
sketch18.addConstraint(Sketcher.Constraint("Horizontal", 1))
sketch18.addConstraint(Sketcher.Constraint("Vertical", 2))
sketch18.addConstraint(Sketcher.Constraint("Horizontal", 3))
sketch18.addConstraint(Sketcher.Constraint("DistanceX", 1, 1, 1, 2, Q("145 mm")))
sketch18.addConstraint(Sketcher.Constraint("DistanceY", 0, 1, 0, 2, Q("1200 mm")))
sketch18.addConstraint(Sketcher.Constraint("DistanceX", -1, 1, 0, 2, Q("255 mm")))
sketch18.addConstraint(Sketcher.Constraint("DistanceY", -1, 1, 0, 2, Q("600 mm")))
sketch18.setExpression("Constraints[8]", "Params.sketch18_width")
sketch18.setExpression("Constraints[9]", "Params.sketch18_height")
pad18 = body18.newObject("PartDesign::Pad", "Pad017")
pad18.Profile = sketch18
pad18.setExpression("Length", "Params.pad18_length")
pad18.Reversed = True
body19 = doc.addObject("PartDesign::Body", "Body018")

sketch19 = body19.newObject("Sketcher::SketchObject", "Sketch018")
sketch19.AttachmentSupport = (doc.getObject("XZ_Plane018"), [""])
sketch19.MapMode = "FlatFace"
sketch19.AttachmentOffset = App.Placement(Vector(0, 0, -50), App.Rotation())
add_polygon(sketch19, [(113, -600), (113, 600), (214, 600), (214, -600)])
sketch19.addConstraint(Sketcher.Constraint("Vertical", 0))
sketch19.addConstraint(Sketcher.Constraint("Horizontal", 1))
sketch19.addConstraint(Sketcher.Constraint("Vertical", 2))
sketch19.addConstraint(Sketcher.Constraint("Horizontal", 3))
sketch19.addConstraint(Sketcher.Constraint("DistanceY", 0, 1, 0, 2, Q("1200 mm")))
sketch19.addConstraint(Sketcher.Constraint("DistanceX", 1, 1, 1, 2, Q("101.5 mm")))
sketch19.addConstraint(Sketcher.Constraint("DistanceX", -1, 1, 0, 2, Q("113 mm")))
sketch19.addConstraint(Sketcher.Constraint("DistanceY", -1, 1, 0, 2, Q("600 mm")))
sketch19.setExpression("Constraints[8]", "Params.sketch19_height")
sketch19.setExpression("Constraints[9]", "Params.sketch19_width")
pad19 = body19.newObject("PartDesign::Pad", "Pad018")
pad19.Profile = sketch19
pad19.setExpression("Length", "Params.pad19_length")
pad19.Reversed = True
body20 = doc.addObject("PartDesign::Body", "Body019")

sketch20 = body20.newObject("Sketcher::SketchObject", "Sketch019")
sketch20.AttachmentSupport = (doc.getObject("XZ_Plane019"), [""])
sketch20.MapMode = "FlatFace"
sketch20.AttachmentOffset = App.Placement(Vector(0, 0, -50), App.Rotation())
add_polygon(sketch20, [(-214, -600), (-214, 600), (-113, 600), (-113, -600)])
sketch20.addConstraint(Sketcher.Constraint("Vertical", 0))
sketch20.addConstraint(Sketcher.Constraint("Horizontal", 1))
sketch20.addConstraint(Sketcher.Constraint("Vertical", 2))
sketch20.addConstraint(Sketcher.Constraint("Horizontal", 3))
sketch20.addConstraint(Sketcher.Constraint("DistanceY", 0, 1, 0, 2, Q("1200 mm")))
sketch20.addConstraint(Sketcher.Constraint("DistanceX", 1, 1, 1, 2, Q("101.5 mm")))
sketch20.addConstraint(Sketcher.Constraint("DistanceY", -1, 1, 0, 2, Q("600 mm")))
sketch20.addConstraint(Sketcher.Constraint("DistanceX", 1, 2, -1, 1, Q("113 mm")))
sketch20.setExpression("Constraints[8]", "Params.sketch20_height")
sketch20.setExpression("Constraints[9]", "Params.sketch20_width")
pad20 = body20.newObject("PartDesign::Pad", "Pad019")
pad20.Profile = sketch20
pad20.setExpression("Length", "Params.pad20_length")
pad20.Reversed = True
body21 = doc.addObject("PartDesign::Body", "Body020")
body21.AllowCompound = True

sketch21 = body21.newObject("Sketcher::SketchObject", "Sketch020")
sketch21.AttachmentSupport = (doc.getObject("XZ_Plane020"), [""])
sketch21.MapMode = "FlatFace"
sketch21.AttachmentOffset = App.Placement(Vector(0, 0, 50), App.Rotation())
add_polygon(sketch21, [(400, 583), (383, 600), (400, 600)])
add_polygon(sketch21, [(383, -600), (400, -583), (400, -600)])
add_polygon(sketch21, [(-383, -600), (-400, -600), (-400, -583)])
add_polygon(sketch21, [(-400, 583), (-400, 600), (-383, 600)])
sketch21.addConstraint(Sketcher.Constraint("Horizontal", 1))
sketch21.addConstraint(Sketcher.Constraint("Vertical", 2))
sketch21.addConstraint(Sketcher.Constraint("Vertical", 4))
sketch21.addConstraint(Sketcher.Constraint("Horizontal", 5))
sketch21.addConstraint(Sketcher.Constraint("Horizontal", 6))
sketch21.addConstraint(Sketcher.Constraint("Vertical", 7))
sketch21.addConstraint(Sketcher.Constraint("Vertical", 9))
sketch21.addConstraint(Sketcher.Constraint("Horizontal", 10))
sketch21.addConstraint(Sketcher.Constraint("Symmetric", 1, 2, 6, 2, -1, 1))
sketch21.addConstraint(Sketcher.Constraint("Symmetric", 4, 2, 9, 2, -1, 1))
sketch21.addConstraint(Sketcher.Constraint("Symmetric", 4, 2, 6, 2, -2))
sketch21.addConstraint(Sketcher.Constraint("Perpendicular", 0, 3))
sketch21.addConstraint(Sketcher.Constraint("Perpendicular", 3, 8))
sketch21.addConstraint(Sketcher.Constraint("Perpendicular", 8, 11))
sketch21.addConstraint(Sketcher.Constraint("Horizontal", 3, 2, 7, 2))
sketch21.addConstraint(Sketcher.Constraint("Horizontal", 2, 2, 11, 2))
sketch21.addConstraint(Sketcher.Constraint("Vertical", 0, 2, 5, 2))
sketch21.addConstraint(Sketcher.Constraint("Vertical", 8, 2, 10, 2))
sketch21.addConstraint(Sketcher.Constraint("DistanceX", 1, 1, 1, 2, Q("17 mm")))
sketch21.addConstraint(Sketcher.Constraint("DistanceX", -1, 1, 0, 2, Q("383 mm")))
sketch21.addConstraint(Sketcher.Constraint("DistanceY", -1, 1, 0, 2, Q("600 mm")))
sketch21.setExpression("Constraints[30]", "Params.sketch21_width")
pad21 = body21.newObject("PartDesign::Pad", "Pad020")
pad21.Profile = sketch21
pad21.Type = "TwoLengths"
pad21.setExpression("Length", "Params.pad21_length")
pad21.setExpression("Length2", "Params.pad21_length2")
pad21.Reversed = True
doc.recompute()

body22 = doc.addObject("PartDesign::Body", "Body021")
body22.BaseFeature = body21
boolean = body.newObject("PartDesign::Boolean", "Boolean")
boolean.Type = "Cut"
boolean.addObjects([body22])
doc.recompute()

body23 = doc.addObject("PartDesign::Body", "Body022")
body23.BaseFeature = body21
boolean2 = body3.newObject("PartDesign::Boolean", "Boolean001")
boolean2.Type = "Cut"
boolean2.addObjects([body23])
doc.recompute()

body24 = doc.addObject("PartDesign::Body", "Body023")
body24.BaseFeature = body21
boolean3 = body13.newObject("PartDesign::Boolean", "Boolean002")
boolean3.Type = "Cut"
boolean3.addObjects([body24])
doc.recompute()

body25 = doc.addObject("PartDesign::Body", "Body024")
body25.BaseFeature = body21
boolean4 = body15.newObject("PartDesign::Boolean", "Boolean003")
boolean4.Type = "Cut"
boolean4.addObjects([body25])
doc.recompute()

body26 = doc.addObject("PartDesign::Body", "Body025")
body26.BaseFeature = body21
boolean5 = body17.newObject("PartDesign::Boolean", "Boolean004")
boolean5.Type = "Cut"
boolean5.addObjects([body26])
doc.recompute()

boolean6 = body18.newObject("PartDesign::Boolean", "Boolean005")
boolean6.Type = "Cut"
boolean6.addObjects([body21])
body27 = doc.addObject("PartDesign::Body", "Body026")
body27.AllowCompound = True

sketch22 = body27.newObject("Sketcher::SketchObject", "Sketch021")
sketch22.AttachmentSupport = (doc.getObject("XY_Plane026"), [""])
sketch22.MapMode = "FlatFace"
sketch22.AttachmentOffset = App.Placement(Vector(0, 0, 80), App.Rotation())
add_polygon(sketch22, [(395, -50), (400, -55), (400, -50)])
add_polygon(sketch22, [(305, -50), (300, -50), (300, -55)])
add_polygon(sketch22, [(72, -50), (68, -50), (72, -55)])
add_polygon(sketch22, [(-72, -55), (-68, -50), (-72, -50)])
add_polygon(sketch22, [(-300, -55), (-300, -50), (-305, -50)])
add_polygon(sketch22, [(-400, -50), (-400, -55), (-395, -50)])
sketch22.addConstraint(Sketcher.Constraint("Vertical", 1))
sketch22.addConstraint(Sketcher.Constraint("Horizontal", 2))
sketch22.addConstraint(Sketcher.Constraint("Horizontal", 3))
sketch22.addConstraint(Sketcher.Constraint("Vertical", 4))
sketch22.addConstraint(Sketcher.Constraint("Horizontal", 6))
sketch22.addConstraint(Sketcher.Constraint("Vertical", 8))
sketch22.addConstraint(Sketcher.Constraint("Horizontal", 10))
sketch22.addConstraint(Sketcher.Constraint("Vertical", 11))
sketch22.addConstraint(Sketcher.Constraint("Vertical", 12))
sketch22.addConstraint(Sketcher.Constraint("Horizontal", 13))
sketch22.addConstraint(Sketcher.Constraint("Vertical", 15))
sketch22.addConstraint(Sketcher.Constraint("Horizontal", 17))
sketch22.addConstraint(Sketcher.Constraint("Symmetric", 6, 2, 9, 2, -2))
sketch22.addConstraint(Sketcher.Constraint("Symmetric", 7, 2, 11, 2, -2))
sketch22.addConstraint(Sketcher.Constraint("Symmetric", 3, 2, 12, 2, -2))
sketch22.addConstraint(Sketcher.Constraint("Symmetric", 0, 2, 15, 2, -2))
sketch22.addConstraint(Sketcher.Constraint("Symmetric", 2, 2, 16, 2, -2))
sketch22.addConstraint(Sketcher.Constraint("Perpendicular", 0, 5))
sketch22.addConstraint(Sketcher.Constraint("Perpendicular", 5, 7))
sketch22.addConstraint(Sketcher.Constraint("Perpendicular", 7, 9))
sketch22.addConstraint(Sketcher.Constraint("Perpendicular", 9, 14))
sketch22.addConstraint(Sketcher.Constraint("Horizontal", 2, 2, 3, 2))
sketch22.addConstraint(Sketcher.Constraint("Horizontal", 0, 2, 4, 2))
sketch22.addConstraint(Sketcher.Constraint("Horizontal", 5, 2, 6, 2))
sketch22.addConstraint(Sketcher.Constraint("Horizontal", 4, 2, 7, 2))
sketch22.addConstraint(Sketcher.Constraint("Horizontal", 11, 2, 14, 2))
sketch22.addConstraint(Sketcher.Constraint("DistanceX", 2, 2, 2, 1, Q("5 mm")))
sketch22.addConstraint(Sketcher.Constraint("DistanceX", -1, 1, 0, 2, Q("400 mm")))
sketch22.addConstraint(Sketcher.Constraint("DistanceY", 0, 2, -1, 1, Q("55 mm")))
sketch22.addConstraint(Sketcher.Constraint("DistanceX", -1, 1, 3, 2, Q("300 mm")))
sketch22.addConstraint(Sketcher.Constraint("DistanceX", 9, 2, 6, 2, Q("135 mm")))
sketch22.setExpression("Constraints[44]", "Params.sketch22_width")
pad22 = body27.newObject("PartDesign::Pad", "Pad021")
pad22.Profile = sketch22
pad22.setExpression("Length", "Params.pad22_length")
doc.recompute()

body28 = doc.addObject("PartDesign::Body", "Body027")
body28.BaseFeature = body27
boolean7 = body.newObject("PartDesign::Boolean", "Boolean006")
boolean7.Type = "Cut"
boolean7.addObjects([body28])
doc.recompute()

body29 = doc.addObject("PartDesign::Body", "Body028")
body29.BaseFeature = body27
boolean8 = body2.newObject("PartDesign::Boolean", "Boolean007")
boolean8.Type = "Cut"
boolean8.addObjects([body29])
doc.recompute()

boolean9 = body3.newObject("PartDesign::Boolean", "Boolean008")
boolean9.Type = "Cut"
boolean9.addObjects([body27])
body30 = doc.addObject("PartDesign::Body", "Body029")
body30.AllowCompound = True

sketch23 = body30.newObject("Sketcher::SketchObject", "Sketch022")
sketch23.AttachmentSupport = (doc.getObject("XY_Plane029"), [""])
sketch23.MapMode = "FlatFace"
sketch23.AttachmentOffset = App.Placement(Vector(0, 0, -80), App.Rotation())
add_polygon(sketch23, [(395, -50), (400, -55), (400, -50)])
add_polygon(sketch23, [(305, -50), (300, -50), (300, -55)])
add_polygon(sketch23, [(72, -50), (68, -50), (72, -55)])
add_polygon(sketch23, [(-72, -55), (-68, -50), (-72, -50)])
add_polygon(sketch23, [(-300, -55), (-300, -50), (-305, -50)])
add_polygon(sketch23, [(-400, -50), (-400, -55), (-395, -50)])
sketch23.addConstraint(Sketcher.Constraint("Vertical", 1))
sketch23.addConstraint(Sketcher.Constraint("Horizontal", 2))
sketch23.addConstraint(Sketcher.Constraint("Horizontal", 3))
sketch23.addConstraint(Sketcher.Constraint("Vertical", 4))
sketch23.addConstraint(Sketcher.Constraint("Horizontal", 6))
sketch23.addConstraint(Sketcher.Constraint("Vertical", 8))
sketch23.addConstraint(Sketcher.Constraint("Horizontal", 10))
sketch23.addConstraint(Sketcher.Constraint("Vertical", 11))
sketch23.addConstraint(Sketcher.Constraint("Vertical", 12))
sketch23.addConstraint(Sketcher.Constraint("Horizontal", 13))
sketch23.addConstraint(Sketcher.Constraint("Vertical", 15))
sketch23.addConstraint(Sketcher.Constraint("Horizontal", 17))
sketch23.addConstraint(Sketcher.Constraint("Symmetric", 6, 2, 9, 2, -2))
sketch23.addConstraint(Sketcher.Constraint("Symmetric", 7, 2, 11, 2, -2))
sketch23.addConstraint(Sketcher.Constraint("Symmetric", 3, 2, 12, 2, -2))
sketch23.addConstraint(Sketcher.Constraint("Symmetric", 0, 2, 15, 2, -2))
sketch23.addConstraint(Sketcher.Constraint("Symmetric", 2, 2, 16, 2, -2))
sketch23.addConstraint(Sketcher.Constraint("Perpendicular", 0, 5))
sketch23.addConstraint(Sketcher.Constraint("Perpendicular", 5, 7))
sketch23.addConstraint(Sketcher.Constraint("Perpendicular", 7, 9))
sketch23.addConstraint(Sketcher.Constraint("Perpendicular", 9, 14))
sketch23.addConstraint(Sketcher.Constraint("Horizontal", 2, 2, 3, 2))
sketch23.addConstraint(Sketcher.Constraint("Horizontal", 0, 2, 4, 2))
sketch23.addConstraint(Sketcher.Constraint("Horizontal", 5, 2, 6, 2))
sketch23.addConstraint(Sketcher.Constraint("Horizontal", 4, 2, 7, 2))
sketch23.addConstraint(Sketcher.Constraint("Horizontal", 11, 2, 14, 2))
sketch23.addConstraint(Sketcher.Constraint("DistanceX", 2, 2, 2, 1, Q("5 mm")))
sketch23.addConstraint(Sketcher.Constraint("DistanceX", -1, 1, 0, 2, Q("400 mm")))
sketch23.addConstraint(Sketcher.Constraint("DistanceY", 0, 2, -1, 1, Q("55 mm")))
sketch23.addConstraint(Sketcher.Constraint("DistanceX", -1, 1, 3, 2, Q("300 mm")))
sketch23.addConstraint(Sketcher.Constraint("DistanceX", 9, 2, 6, 2, Q("135 mm")))
sketch23.setExpression("Constraints[44]", "Params.sketch23_width")
pad23 = body30.newObject("PartDesign::Pad", "Pad022")
pad23.Profile = sketch23
pad23.setExpression("Length", "Params.pad23_length")
pad23.Reversed = True
doc.recompute()

body31 = doc.addObject("PartDesign::Body", "Body030")
body31.BaseFeature = body30
boolean10 = body.newObject("PartDesign::Boolean", "Boolean009")
boolean10.Type = "Cut"
boolean10.addObjects([body31])
doc.recompute()

fillet = body.newObject("PartDesign::Fillet", "Fillet")
fillet.Base = (boolean10, edges_at(boolean10, [
    (-397.5, -52.5, 80),
    (-397.5, -52.5, 440),
    (-302.5, -52.5, -440),
    (-302.5, -52.5, -80),
    (-397.5, -52.5, -440),
    (-397.5, -52.5, -80),
    (-302.5, -52.5, 80),
    (-302.5, -52.5, 440),
]))
fillet.setExpression("Radius", "Params.fillet_radius")
doc.recompute()

body32 = doc.addObject("PartDesign::Body", "Body031")
body32.BaseFeature = body30
boolean11 = body2.newObject("PartDesign::Boolean", "Boolean010")
boolean11.Type = "Cut"
boolean11.addObjects([body32])
doc.recompute()

fillet2 = body2.newObject("PartDesign::Fillet", "Fillet001")
fillet2.Base = (boolean11, edges_at(boolean11, [
    (-70, -52.5, -80),
    (70, -52.5, 80),
    (70, -52.5, 440),
    (-70, -52.5, 80),
    (-70, -52.5, 440),
    (70, -52.5, -440),
    (70, -52.5, -80),
    (-70, -52.5, -440),
]))
fillet2.setExpression("Radius", "Params.fillet2_radius")
doc.recompute()

boolean12 = body3.newObject("PartDesign::Boolean", "Boolean011")
boolean12.Type = "Cut"
boolean12.addObjects([body30])
doc.recompute()

fillet3 = body3.newObject("PartDesign::Fillet", "Fillet002")
fillet3.Base = (boolean12, edges_at(boolean12, [
    (397.5, -52.5, -440),
    (397.5, -52.5, -80),
    (302.5, -52.5, -440),
    (302.5, -52.5, -80),
    (397.5, -52.5, 80),
    (397.5, -52.5, 440),
    (302.5, -52.5, 80),
    (302.5, -52.5, 440),
]))
fillet3.setExpression("Radius", "Params.fillet3_radius")

doc.recompute()
